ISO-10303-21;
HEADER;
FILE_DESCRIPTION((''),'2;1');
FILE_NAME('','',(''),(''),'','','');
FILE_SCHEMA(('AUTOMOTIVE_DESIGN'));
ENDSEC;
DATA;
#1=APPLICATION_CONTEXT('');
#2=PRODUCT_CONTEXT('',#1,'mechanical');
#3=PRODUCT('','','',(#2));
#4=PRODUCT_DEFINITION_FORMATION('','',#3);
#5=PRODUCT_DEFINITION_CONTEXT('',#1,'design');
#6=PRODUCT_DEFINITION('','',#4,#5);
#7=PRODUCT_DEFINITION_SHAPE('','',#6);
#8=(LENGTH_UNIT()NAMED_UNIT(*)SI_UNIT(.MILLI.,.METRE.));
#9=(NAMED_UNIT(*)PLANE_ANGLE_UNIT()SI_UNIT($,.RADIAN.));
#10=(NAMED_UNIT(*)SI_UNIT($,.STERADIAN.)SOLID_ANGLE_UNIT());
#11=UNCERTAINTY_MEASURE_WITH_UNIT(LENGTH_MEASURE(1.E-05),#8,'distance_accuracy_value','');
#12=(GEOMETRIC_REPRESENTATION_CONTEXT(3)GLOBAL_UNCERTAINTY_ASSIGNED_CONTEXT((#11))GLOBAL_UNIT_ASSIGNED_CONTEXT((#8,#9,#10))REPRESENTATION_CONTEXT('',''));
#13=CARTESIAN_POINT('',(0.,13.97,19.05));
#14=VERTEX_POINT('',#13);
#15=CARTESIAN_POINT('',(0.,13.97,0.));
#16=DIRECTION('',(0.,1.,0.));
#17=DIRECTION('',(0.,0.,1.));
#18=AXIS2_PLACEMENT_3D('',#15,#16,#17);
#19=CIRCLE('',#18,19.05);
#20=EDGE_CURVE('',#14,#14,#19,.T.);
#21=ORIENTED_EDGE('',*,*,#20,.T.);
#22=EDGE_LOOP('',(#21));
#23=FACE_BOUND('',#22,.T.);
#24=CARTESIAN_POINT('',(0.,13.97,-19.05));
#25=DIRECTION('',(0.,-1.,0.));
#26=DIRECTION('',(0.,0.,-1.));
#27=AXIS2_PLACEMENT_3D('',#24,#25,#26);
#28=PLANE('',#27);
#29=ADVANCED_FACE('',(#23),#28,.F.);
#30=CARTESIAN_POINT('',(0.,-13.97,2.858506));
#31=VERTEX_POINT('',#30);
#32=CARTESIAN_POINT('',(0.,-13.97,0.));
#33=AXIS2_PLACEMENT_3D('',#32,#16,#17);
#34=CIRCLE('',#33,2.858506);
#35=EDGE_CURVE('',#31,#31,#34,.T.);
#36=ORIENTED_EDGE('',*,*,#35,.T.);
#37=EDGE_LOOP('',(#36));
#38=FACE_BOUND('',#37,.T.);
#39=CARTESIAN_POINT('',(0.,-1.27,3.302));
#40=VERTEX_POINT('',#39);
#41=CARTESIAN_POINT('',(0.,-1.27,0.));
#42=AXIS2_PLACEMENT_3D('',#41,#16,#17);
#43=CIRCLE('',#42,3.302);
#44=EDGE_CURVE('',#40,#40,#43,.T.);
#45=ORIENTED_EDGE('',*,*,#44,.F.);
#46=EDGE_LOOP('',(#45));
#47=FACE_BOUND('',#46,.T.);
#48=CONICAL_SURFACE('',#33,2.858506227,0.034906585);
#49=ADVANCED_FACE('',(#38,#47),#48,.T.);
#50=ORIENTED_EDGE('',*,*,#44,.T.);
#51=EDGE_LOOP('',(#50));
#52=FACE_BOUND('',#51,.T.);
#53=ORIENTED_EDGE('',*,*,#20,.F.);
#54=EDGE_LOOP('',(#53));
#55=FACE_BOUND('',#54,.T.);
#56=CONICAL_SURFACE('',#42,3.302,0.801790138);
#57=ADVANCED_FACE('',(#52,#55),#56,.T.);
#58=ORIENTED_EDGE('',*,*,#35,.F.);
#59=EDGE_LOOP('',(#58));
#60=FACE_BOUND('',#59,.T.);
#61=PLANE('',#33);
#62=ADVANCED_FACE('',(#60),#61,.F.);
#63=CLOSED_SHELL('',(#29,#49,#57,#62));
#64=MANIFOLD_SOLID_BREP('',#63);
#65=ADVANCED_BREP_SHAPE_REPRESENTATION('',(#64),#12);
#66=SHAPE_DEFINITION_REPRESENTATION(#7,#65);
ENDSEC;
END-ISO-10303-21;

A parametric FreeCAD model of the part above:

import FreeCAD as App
import Part
import Sketcher
Q = App.Units.Quantity

doc = App.newDocument("Part")
params = doc.addObject("Spreadsheet::Sheet", "Params")
for row, (alias, value) in enumerate([
    ("sketch1_width", "1.1 in"),
    ("sketch1_height", "0.75 in"),
    ("revolution_angle", "360 deg"),
], start=1):
    params.set(f"A{row}", alias)
    params.set(f"B{row}", "=" + value)
    params.setAlias(f"B{row}", alias)

body = doc.addObject("PartDesign::Body", "Body")

# Sketch on YZ plane
sketch1 = body.newObject("Sketcher::SketchObject", "Sketch")
sketch1.AttachmentSupport = (doc.getObject("YZ_Plane"), [""])
sketch1.MapMode = "FlatFace"
sketch1.addGeometry(Part.LineSegment(App.Vector(14, 0, 0), App.Vector(-14, 0, 0)), False)
sketch1.addGeometry(Part.LineSegment(App.Vector(-14, 0, 0), App.Vector(-14, -2.9, 0)), False)
sketch1.addGeometry(Part.LineSegment(App.Vector(-14, -2.9, 0), App.Vector(-1.3, -3.3, 0)), False)
sketch1.addGeometry(Part.LineSegment(App.Vector(-1.3, -3.3, 0), App.Vector(14, -19.1, 0)), False)
sketch1.addGeometry(Part.LineSegment(App.Vector(14, -19.1, 0), App.Vector(14, 0, 0)), False)
sketch1.addConstraint(Sketcher.Constraint("Coincident", 0, 2, 1, 1))
sketch1.addConstraint(Sketcher.Constraint("Coincident", 1, 2, 2, 1))
sketch1.addConstraint(Sketcher.Constraint("Coincident", 2, 2, 3, 1))
sketch1.addConstraint(Sketcher.Constraint("Coincident", 3, 2, 4, 1))
sketch1.addConstraint(Sketcher.Constraint("Coincident", 4, 2, 0, 1))
sketch1.addConstraint(Sketcher.Constraint("Horizontal", 0))
sketch1.addConstraint(Sketcher.Constraint("Vertical", 1))
sketch1.addConstraint(Sketcher.Constraint("Vertical", 4))
sketch1.addConstraint(Sketcher.Constraint("Symmetric", 0, 2, 4, 2, -1, 1))
sketch1.addConstraint(Sketcher.Constraint("DistanceX", 0, 2, 0, 1, Q("1.1 in")))
sketch1.addConstraint(Sketcher.Constraint("Angle", 2, Q("-2 deg")))
sketch1.addConstraint(Sketcher.Constraint("DistanceY", 4, 1, 4, 2, Q("0.75 in")))
sketch1.addConstraint(Sketcher.Constraint("DistanceX", 1, 2, 2, 2, Q("0.5 in")))
sketch1.addConstraint(Sketcher.Constraint("DistanceY", 2, 2, -1, 1, Q("0.13 in")))
sketch1.setExpression("Constraints[9]", "Params.sketch1_width")
sketch1.setExpression("Constraints[11]", "Params.sketch1_height")
revolution = body.newObject("PartDesign::Revolution", "Revolution")
revolution.Profile = sketch1
revolution.ReferenceAxis = (sketch1, ["H_Axis"])
revolution.setExpression("Angle", "Params.revolution_angle")

doc.recompute()
